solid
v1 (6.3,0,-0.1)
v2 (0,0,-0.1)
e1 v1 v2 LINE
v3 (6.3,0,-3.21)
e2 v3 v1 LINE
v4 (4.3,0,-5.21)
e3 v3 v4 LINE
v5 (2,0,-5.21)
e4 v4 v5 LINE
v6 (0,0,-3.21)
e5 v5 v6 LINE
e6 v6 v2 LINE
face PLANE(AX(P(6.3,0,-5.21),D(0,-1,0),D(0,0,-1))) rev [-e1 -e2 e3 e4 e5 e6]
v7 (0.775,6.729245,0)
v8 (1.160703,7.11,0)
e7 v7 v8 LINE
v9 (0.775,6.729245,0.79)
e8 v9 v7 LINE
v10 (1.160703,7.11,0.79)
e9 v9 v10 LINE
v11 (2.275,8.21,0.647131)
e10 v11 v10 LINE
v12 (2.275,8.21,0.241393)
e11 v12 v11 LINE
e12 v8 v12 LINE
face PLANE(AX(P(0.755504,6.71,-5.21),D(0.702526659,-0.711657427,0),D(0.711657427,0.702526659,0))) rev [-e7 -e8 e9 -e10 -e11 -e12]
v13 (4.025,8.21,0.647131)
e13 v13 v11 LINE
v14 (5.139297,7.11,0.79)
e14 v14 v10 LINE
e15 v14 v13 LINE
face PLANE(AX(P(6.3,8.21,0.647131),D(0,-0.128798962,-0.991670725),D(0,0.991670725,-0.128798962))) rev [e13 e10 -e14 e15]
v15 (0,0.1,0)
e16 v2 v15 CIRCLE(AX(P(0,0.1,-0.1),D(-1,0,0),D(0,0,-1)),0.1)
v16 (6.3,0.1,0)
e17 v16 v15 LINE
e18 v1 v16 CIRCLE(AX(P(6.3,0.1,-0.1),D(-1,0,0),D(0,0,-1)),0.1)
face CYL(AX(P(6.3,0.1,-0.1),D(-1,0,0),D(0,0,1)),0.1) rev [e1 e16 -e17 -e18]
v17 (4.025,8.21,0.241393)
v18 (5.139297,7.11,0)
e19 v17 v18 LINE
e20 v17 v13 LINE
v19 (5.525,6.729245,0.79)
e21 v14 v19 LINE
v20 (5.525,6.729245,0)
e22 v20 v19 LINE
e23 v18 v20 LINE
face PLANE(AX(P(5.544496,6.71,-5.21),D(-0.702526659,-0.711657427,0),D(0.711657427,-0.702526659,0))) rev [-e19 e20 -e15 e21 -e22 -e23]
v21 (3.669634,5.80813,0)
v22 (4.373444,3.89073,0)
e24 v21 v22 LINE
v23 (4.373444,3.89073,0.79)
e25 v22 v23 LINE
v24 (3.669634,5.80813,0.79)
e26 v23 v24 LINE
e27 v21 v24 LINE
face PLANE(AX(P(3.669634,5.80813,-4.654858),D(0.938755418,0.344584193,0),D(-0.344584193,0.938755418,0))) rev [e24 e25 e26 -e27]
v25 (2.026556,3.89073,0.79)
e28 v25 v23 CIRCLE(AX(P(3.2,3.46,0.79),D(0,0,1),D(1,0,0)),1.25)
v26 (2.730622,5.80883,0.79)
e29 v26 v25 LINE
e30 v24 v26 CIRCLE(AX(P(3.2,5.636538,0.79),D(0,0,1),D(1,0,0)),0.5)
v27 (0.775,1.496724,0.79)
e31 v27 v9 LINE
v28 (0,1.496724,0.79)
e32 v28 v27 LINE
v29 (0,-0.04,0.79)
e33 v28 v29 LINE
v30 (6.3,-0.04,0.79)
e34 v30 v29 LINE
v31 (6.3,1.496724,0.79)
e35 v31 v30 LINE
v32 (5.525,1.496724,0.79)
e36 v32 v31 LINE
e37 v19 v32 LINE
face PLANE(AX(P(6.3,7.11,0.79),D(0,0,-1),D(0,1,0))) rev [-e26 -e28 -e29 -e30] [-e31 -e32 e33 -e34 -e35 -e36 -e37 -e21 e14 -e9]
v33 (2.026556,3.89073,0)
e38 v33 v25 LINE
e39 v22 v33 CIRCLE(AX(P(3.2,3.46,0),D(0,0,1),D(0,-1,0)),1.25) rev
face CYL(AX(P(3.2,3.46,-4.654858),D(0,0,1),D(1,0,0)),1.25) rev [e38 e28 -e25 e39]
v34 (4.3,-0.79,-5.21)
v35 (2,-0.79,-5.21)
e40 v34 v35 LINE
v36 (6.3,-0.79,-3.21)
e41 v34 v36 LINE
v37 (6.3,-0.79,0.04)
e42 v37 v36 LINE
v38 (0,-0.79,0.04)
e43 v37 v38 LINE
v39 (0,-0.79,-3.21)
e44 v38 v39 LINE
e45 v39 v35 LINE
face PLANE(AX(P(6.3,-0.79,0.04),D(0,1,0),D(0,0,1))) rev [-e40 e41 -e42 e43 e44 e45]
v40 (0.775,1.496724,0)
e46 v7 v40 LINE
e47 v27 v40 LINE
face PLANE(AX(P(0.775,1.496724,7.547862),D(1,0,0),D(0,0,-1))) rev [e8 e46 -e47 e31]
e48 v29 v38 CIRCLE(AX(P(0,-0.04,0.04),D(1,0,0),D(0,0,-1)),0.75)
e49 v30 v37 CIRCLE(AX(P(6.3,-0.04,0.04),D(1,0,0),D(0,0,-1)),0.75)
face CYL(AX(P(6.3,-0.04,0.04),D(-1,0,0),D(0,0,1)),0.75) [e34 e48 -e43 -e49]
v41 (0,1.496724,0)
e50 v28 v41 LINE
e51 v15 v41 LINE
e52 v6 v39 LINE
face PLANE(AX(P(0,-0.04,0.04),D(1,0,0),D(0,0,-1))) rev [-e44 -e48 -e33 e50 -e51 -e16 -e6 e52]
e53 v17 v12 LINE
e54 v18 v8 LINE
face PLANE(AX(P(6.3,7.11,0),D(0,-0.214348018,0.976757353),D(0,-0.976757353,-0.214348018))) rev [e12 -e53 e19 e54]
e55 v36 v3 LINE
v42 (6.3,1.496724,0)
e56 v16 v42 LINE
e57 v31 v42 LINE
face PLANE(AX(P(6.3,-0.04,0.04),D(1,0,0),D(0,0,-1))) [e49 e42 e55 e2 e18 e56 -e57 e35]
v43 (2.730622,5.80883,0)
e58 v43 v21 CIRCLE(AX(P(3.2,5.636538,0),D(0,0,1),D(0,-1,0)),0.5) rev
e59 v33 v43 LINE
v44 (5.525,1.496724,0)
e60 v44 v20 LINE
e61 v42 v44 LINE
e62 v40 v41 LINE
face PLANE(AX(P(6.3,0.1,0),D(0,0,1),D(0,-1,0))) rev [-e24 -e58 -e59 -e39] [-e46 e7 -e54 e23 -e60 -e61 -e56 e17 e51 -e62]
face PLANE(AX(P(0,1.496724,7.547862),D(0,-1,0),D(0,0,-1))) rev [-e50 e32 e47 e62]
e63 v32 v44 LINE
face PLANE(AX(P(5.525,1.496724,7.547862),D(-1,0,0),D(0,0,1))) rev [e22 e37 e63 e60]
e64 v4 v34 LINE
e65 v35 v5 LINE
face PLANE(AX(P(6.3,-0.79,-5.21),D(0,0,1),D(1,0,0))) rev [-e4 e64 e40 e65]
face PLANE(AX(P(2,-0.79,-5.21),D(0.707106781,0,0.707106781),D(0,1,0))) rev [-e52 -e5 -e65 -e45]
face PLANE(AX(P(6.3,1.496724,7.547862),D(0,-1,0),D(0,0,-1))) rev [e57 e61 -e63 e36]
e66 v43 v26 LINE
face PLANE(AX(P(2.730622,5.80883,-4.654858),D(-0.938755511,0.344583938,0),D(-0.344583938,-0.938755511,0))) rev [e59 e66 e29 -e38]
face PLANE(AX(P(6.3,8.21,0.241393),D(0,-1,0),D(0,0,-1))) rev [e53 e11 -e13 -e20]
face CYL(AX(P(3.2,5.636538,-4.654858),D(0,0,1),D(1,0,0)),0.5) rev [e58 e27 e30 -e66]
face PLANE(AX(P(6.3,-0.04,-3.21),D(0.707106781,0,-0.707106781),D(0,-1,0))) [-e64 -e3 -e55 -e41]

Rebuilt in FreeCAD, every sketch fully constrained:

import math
import FreeCAD as App
import Part
import Sketcher
from FreeCAD import Vector
Q = App.Units.Quantity


def edges_at(feature, points):
    """Names of the edges that pass closest to the given points."""
    edges = feature.Shape.Edges
    near = lambda p: min(range(len(edges)), key=lambda i: edges[i].distToShape(Part.Vertex(*p))[0])
    return sorted({f"Edge{near(p) + 1}" for p in points})

doc = App.newDocument("Part")
body = doc.addObject("PartDesign::Body", "Body")

sketch1 = body.newObject("Sketcher::SketchObject", "Sketch")
sketch1.AttachmentSupport = (doc.getObject("YZ_Plane"), [""])
sketch1.MapMode = "FlatFace"
sketch1.addGeometry([
    Part.LineSegment(Vector(0.1, 0, 0), Vector(7.11, 0, 0)),
    Part.LineSegment(Vector(7.11, 0, 0), Vector(8.21, 0.24, 0)),
    Part.LineSegment(Vector(8.21, 0.24, 0), Vector(8.21, 0.65, 0)),
    Part.LineSegment(Vector(8.21, 0.65, 0), Vector(7.11, 0.79, 0)),
    Part.LineSegment(Vector(7.11, 0.79, 0), Vector(-0.04, 0.79, 0)),
    Part.ArcOfCircle(Part.Circle(Vector(-0.04, 0.04, 0), Vector(0, 0, 1), 0.75), math.radians(90), math.radians(180)),
    Part.LineSegment(Vector(-0.79, 0.04, 0), Vector(-0.79, -5.21, 0)),
    Part.LineSegment(Vector(-0.79, -5.21, 0), Vector(0, -5.21, 0)),
    Part.LineSegment(Vector(0, -5.21, 0), Vector(0, -0.1, 0)),
    Part.ArcOfCircle(Part.Circle(Vector(0.1, -0.1, 0), Vector(0, 0, 1), 0.1), math.radians(90), math.radians(180)),
], False)
sketch1.addConstraint([
    Sketcher.Constraint("Coincident", 0, 2, 1, 1),
    Sketcher.Constraint("Coincident", 1, 2, 2, 1),
    Sketcher.Constraint("Coincident", 2, 2, 3, 1),
    Sketcher.Constraint("Coincident", 3, 2, 4, 1),
    Sketcher.Constraint("Tangent", 4, 2, 5, 1),
    Sketcher.Constraint("Tangent", 5, 2, 6, 1),
    Sketcher.Constraint("Coincident", 6, 2, 7, 1),
    Sketcher.Constraint("Coincident", 7, 2, 8, 1),
    Sketcher.Constraint("Tangent", 8, 2, 9, 2),
    Sketcher.Constraint("Tangent", 9, 1, 0, 1),
    Sketcher.Constraint("Horizontal", 0),
    Sketcher.Constraint("Vertical", 2),
    Sketcher.Constraint("Horizontal", 4),
    Sketcher.Constraint("Vertical", 6),
    Sketcher.Constraint("Horizontal", 7),
    Sketcher.Constraint("Vertical", 8),
    Sketcher.Constraint("PointOnObject", 0, 2, -1),
    Sketcher.Constraint("PointOnObject", 7, 2, -2),
    Sketcher.Constraint("Vertical", 0, 2, 3, 2),
    Sketcher.Constraint("Radius", 9, Q("0.1 mm")),
    Sketcher.Constraint("Radius", 5, Q("0.75 mm")),
    Sketcher.Constraint("DistanceY", 6, 2, 4, 2, Q("6 mm")),
    Sketcher.Constraint("DistanceX", 0, 1, 0, 2, Q("7.01 mm")),
    Sketcher.Constraint("DistanceX", 4, 2, 4, 1, Q("7.15 mm")),
    Sketcher.Constraint("DistanceY", 8, 1, 8, 2, Q("5.11 mm")),
    Sketcher.Constraint("DistanceX", 0, 2, 1, 2, Q("1.1 mm")),
    Sketcher.Constraint("Distance", 3, Q("1.109239 mm")),
    Sketcher.Constraint("DistanceY", 2, 1, 2, 2, Q("0.405738 mm")),
])
pad1 = body.newObject("PartDesign::Pad", "Pad")
pad1.Profile = sketch1
pad1.Length = 6.3
doc.recompute()

chamfer = body.newObject("PartDesign::Chamfer", "Chamfer")
chamfer.Base = (pad1, edges_at(pad1, [(0, -0.395, -5.21), (6.3, -0.395, -5.21)]))
chamfer.Size = 2

sketch2 = body.newObject("Sketcher::SketchObject", "Sketch001")
sketch2.AttachmentSupport = (doc.getObject("XY_Plane"), [""])
sketch2.MapMode = "FlatFace"
sketch2.AttachmentOffset = App.Placement(Vector(0, 0, 0.79), App.Rotation())
sketch2.addGeometry([
    Part.LineSegment(Vector(2.7, 5.8, 0), Vector(2, 3.9, 0)),
    Part.ArcOfCircle(Part.Circle(Vector(3.2, 3.5, 0), Vector(0, 0, 1), 1.2), math.radians(160), math.radians(380)),
    Part.LineSegment(Vector(4.4, 3.9, 0), Vector(3.7, 5.8, 0)),
    Part.ArcOfCircle(Part.Circle(Vector(3.2, 5.6, 0), Vector(0, 0, 1), 0.5), math.radians(20), math.radians(160)),
], False)
sketch2.addConstraint([
    Sketcher.Constraint("Tangent", 0, 2, 1, 1),
    Sketcher.Constraint("Tangent", 1, 2, 2, 1),
    Sketcher.Constraint("Coincident", 2, 2, 3, 1),
    Sketcher.Constraint("Tangent", 3, 2, 0, 1),
    Sketcher.Constraint("Horizontal", 0, 2, 1, 2),
    Sketcher.Constraint("Radius", 3, Q("0.5 mm")),
    Sketcher.Constraint("Radius", 1, Q("1.25 mm")),
    Sketcher.Constraint("DistanceX", -1, 1, 1, 3, Q("3.2 mm")),
    Sketcher.Constraint("DistanceY", -1, 1, 1, 3, Q("3.46 mm")),
    Sketcher.Constraint("DistanceY", 1, 2, 2, 2, Q("1.9174 mm")),
    Sketcher.Constraint("DistanceY", 2, 2, 3, 2, Q("0.0007 mm")),
])
pocket1 = body.newObject("PartDesign::Pocket", "Pocket")
pocket1.Profile = sketch2
pocket1.Length = 0.79

sketch3 = body.newObject("Sketcher::SketchObject", "Sketch002")
sketch3.AttachmentSupport = (doc.getObject("XY_Plane"), [""])
sketch3.MapMode = "FlatFace"
sketch3.addGeometry([
    Part.LineSegment(Vector(6.3, 8.2, 0), Vector(6.3, 1.5, 0)),
    Part.LineSegment(Vector(6.3, 1.5, 0), Vector(5.5, 1.5, 0)),
    Part.LineSegment(Vector(5.5, 1.5, 0), Vector(5.5, 8.2, 0)),
    Part.LineSegment(Vector(5.5, 8.2, 0), Vector(6.3, 8.2, 0)),
    Part.LineSegment(Vector(0.8, 8.2, 0), Vector(0.8, 1.5, 0)),
    Part.LineSegment(Vector(0.8, 1.5, 0), Vector(0, 1.5, 0)),
    Part.LineSegment(Vector(0, 1.5, 0), Vector(0, 8.2, 0)),
    Part.LineSegment(Vector(0, 8.2, 0), Vector(0.8, 8.2, 0)),
], False)
sketch3.addConstraint([
    Sketcher.Constraint("Coincident", 0, 2, 1, 1),
    Sketcher.Constraint("Coincident", 1, 2, 2, 1),
    Sketcher.Constraint("Coincident", 2, 2, 3, 1),
    Sketcher.Constraint("Coincident", 3, 2, 0, 1),
    Sketcher.Constraint("Coincident", 4, 2, 5, 1),
    Sketcher.Constraint("Coincident", 5, 2, 6, 1),
    Sketcher.Constraint("Coincident", 6, 2, 7, 1),
    Sketcher.Constraint("Coincident", 7, 2, 4, 1),
    Sketcher.Constraint("Vertical", 0),
    Sketcher.Constraint("Horizontal", 1),
    Sketcher.Constraint("Vertical", 2),
    Sketcher.Constraint("Horizontal", 3),
    Sketcher.Constraint("Vertical", 4),
    Sketcher.Constraint("Horizontal", 5),
    Sketcher.Constraint("Vertical", 6),
    Sketcher.Constraint("Horizontal", 7),
    Sketcher.Constraint("PointOnObject", 5, 2, -2),
    Sketcher.Constraint("Horizontal", 1, 2, 4, 2),
    Sketcher.Constraint("Horizontal", 3, 2, 6, 2),
    Sketcher.Constraint("Equal", 3, 5),
    Sketcher.Constraint("DistanceX", -1, 1, 0, 2, Q("6.3 mm")),
    Sketcher.Constraint("DistanceX", 1, 2, 1, 1, Q("0.775 mm")),
    Sketcher.Constraint("DistanceY", -1, 1, 2, 2, Q("8.21 mm")),
    Sketcher.Constraint("DistanceY", 0, 2, 0, 1, Q("6.713276 mm")),
])
pocket2 = body.newObject("PartDesign::Pocket", "Pocket001")
pocket2.Profile = sketch3
pocket2.Length = 0.79
pocket2.Reversed = True

sketch4 = body.newObject("Sketcher::SketchObject", "Sketch003")
sketch4.AttachmentSupport = (doc.getObject("XY_Plane"), [""])
sketch4.MapMode = "FlatFace"
sketch4.addGeometry([
    Part.LineSegment(Vector(2.3, 8.2, 0), Vector(0.8, 8.2, 0)),
    Part.LineSegment(Vector(0.8, 8.2, 0), Vector(0.8, 6.7, 0)),
    Part.LineSegment(Vector(0.8, 6.7, 0), Vector(2.3, 8.2, 0)),
    Part.LineSegment(Vector(4, 8.2, 0), Vector(5.5, 6.7, 0)),
    Part.LineSegment(Vector(5.5, 6.7, 0), Vector(5.5, 8.2, 0)),
    Part.LineSegment(Vector(5.5, 8.2, 0), Vector(4, 8.2, 0)),
], False)
sketch4.addConstraint([
    Sketcher.Constraint("Coincident", 0, 2, 1, 1),
    Sketcher.Constraint("Coincident", 1, 2, 2, 1),
    Sketcher.Constraint("Coincident", 2, 2, 0, 1),
    Sketcher.Constraint("Coincident", 3, 2, 4, 1),
    Sketcher.Constraint("Coincident", 4, 2, 5, 1),
    Sketcher.Constraint("Coincident", 5, 2, 3, 1),
    Sketcher.Constraint("Horizontal", 0),
    Sketcher.Constraint("Horizontal", 5),
    Sketcher.Constraint("Horizontal", 1, 2, 3, 2),
    Sketcher.Constraint("Horizontal", 2, 2, 4, 2),
    Sketcher.Constraint("Equal", 0, 5),
    Sketcher.Constraint("Equal", 2, 3),
    Sketcher.Constraint("DistanceX", 0, 2, 0, 1, Q("1.5 mm")),
    Sketcher.Constraint("DistanceY", 1, 2, 0, 2, Q("1.5 mm")),
    Sketcher.Constraint("DistanceY", -1, 1, 0, 2, Q("8.21 mm")),
    Sketcher.Constraint("DistanceX", 2, 2, 4, 2, Q("3.25 mm")),
    Sketcher.Constraint("DistanceX", -1, 1, 0, 2, Q("0.775 mm")),
    Sketcher.Constraint("Distance", 2, Q("2.13515 mm")),
])
pocket3 = body.newObject("PartDesign::Pocket", "Pocket002")
pocket3.Profile = sketch4
pocket3.Type = "ThroughAll"
pocket3.Midplane = True

doc.recompute()
